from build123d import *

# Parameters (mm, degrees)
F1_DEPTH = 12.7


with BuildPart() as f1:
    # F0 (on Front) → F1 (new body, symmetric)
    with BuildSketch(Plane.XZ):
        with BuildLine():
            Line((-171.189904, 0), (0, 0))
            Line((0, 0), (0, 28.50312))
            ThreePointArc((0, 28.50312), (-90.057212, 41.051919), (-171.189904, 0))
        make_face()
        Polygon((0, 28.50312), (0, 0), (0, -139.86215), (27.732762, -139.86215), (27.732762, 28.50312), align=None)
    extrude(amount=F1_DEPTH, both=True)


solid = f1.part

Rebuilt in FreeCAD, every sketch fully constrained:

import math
import FreeCAD as App
import Part
import Sketcher
Q = App.Units.Quantity

doc = App.newDocument("Part")
body = doc.addObject("PartDesign::Body", "Body")

# Sketch on XZ plane
sketch1 = body.newObject("Sketcher::SketchObject", "Sketch")
sketch1.AttachmentSupport = (doc.getObject("XZ_Plane"), [""])
sketch1.MapMode = "FlatFace"
sketch1.addGeometry([
    Part.LineSegment(App.Vector(-171, 0, 0), App.Vector(0, 0, 0)),  # 0
    Part.LineSegment(App.Vector(0, 0, 0), App.Vector(0, -140, 0)),  # 1
    Part.LineSegment(App.Vector(0, -140, 0), App.Vector(28, -140, 0)),  # 2
    Part.LineSegment(App.Vector(28, -140, 0), App.Vector(28, 29, 0)),  # 3
    Part.LineSegment(App.Vector(28, 29, 0), App.Vector(0, 29, 0)),  # 4
    Part.ArcOfCircle(Part.Circle(App.Vector(-65, -109, 0), App.Vector(0, 0, 1), 152), math.radians(65), math.radians(134)),  # 5
], False)
sketch1.addConstraint([
    Sketcher.Constraint("Coincident", 0, 2, 1, 1),
    Sketcher.Constraint("Coincident", 1, 2, 2, 1),
    Sketcher.Constraint("Coincident", 2, 2, 3, 1),
    Sketcher.Constraint("Coincident", 3, 2, 4, 1),
    Sketcher.Constraint("Coincident", 4, 2, 5, 1),
    Sketcher.Constraint("Coincident", 5, 2, 0, 1),
    Sketcher.Constraint("Horizontal", 0),
    Sketcher.Constraint("Vertical", 1),
    Sketcher.Constraint("Horizontal", 2),
    Sketcher.Constraint("Vertical", 3),
    Sketcher.Constraint("Horizontal", 4),
    Sketcher.Constraint("Coincident", 0, 2, -1, 1),
    Sketcher.Constraint("PointOnObject", 4, 2, -2),
    Sketcher.Constraint("Radius", 5, 152.152852),
    Sketcher.Constraint("DistanceY", 1, 2, 1, 1, 139.86215),
    Sketcher.Constraint("DistanceY", 3, 1, 3, 2, 168.36527),
    Sketcher.Constraint("DistanceX", 0, 1, 0, 2, 171.189904),
    Sketcher.Constraint("DistanceX", 2, 1, 2, 2, 27.732762),
])
pad1 = body.newObject("PartDesign::Pad", "Pad")
pad1.Profile = sketch1
pad1.Length = Q("1 in")
pad1.Midplane = True

doc.recompute()
